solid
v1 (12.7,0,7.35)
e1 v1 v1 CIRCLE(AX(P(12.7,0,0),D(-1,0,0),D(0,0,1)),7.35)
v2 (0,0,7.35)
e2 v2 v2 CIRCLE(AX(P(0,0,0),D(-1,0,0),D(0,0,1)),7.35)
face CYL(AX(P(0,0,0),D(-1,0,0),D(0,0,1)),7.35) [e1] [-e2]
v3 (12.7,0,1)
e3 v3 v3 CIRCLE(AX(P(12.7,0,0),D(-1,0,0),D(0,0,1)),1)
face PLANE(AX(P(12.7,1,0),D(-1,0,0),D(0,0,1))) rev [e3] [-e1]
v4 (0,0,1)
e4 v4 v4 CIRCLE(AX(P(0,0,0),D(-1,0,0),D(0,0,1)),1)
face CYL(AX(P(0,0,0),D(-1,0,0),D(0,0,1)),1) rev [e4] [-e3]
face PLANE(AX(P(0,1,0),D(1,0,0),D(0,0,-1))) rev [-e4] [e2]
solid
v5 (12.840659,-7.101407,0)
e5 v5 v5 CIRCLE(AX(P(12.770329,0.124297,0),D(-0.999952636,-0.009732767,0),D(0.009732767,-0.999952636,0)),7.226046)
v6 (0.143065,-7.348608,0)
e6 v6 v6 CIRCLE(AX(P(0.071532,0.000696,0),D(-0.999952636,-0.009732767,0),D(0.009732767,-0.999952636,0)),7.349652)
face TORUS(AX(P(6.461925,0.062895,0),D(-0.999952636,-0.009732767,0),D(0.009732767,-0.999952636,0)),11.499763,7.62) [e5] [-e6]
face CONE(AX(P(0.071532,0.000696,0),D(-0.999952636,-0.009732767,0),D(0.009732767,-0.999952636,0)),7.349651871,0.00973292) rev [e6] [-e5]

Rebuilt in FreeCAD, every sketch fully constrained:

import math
import FreeCAD as App
import Part
import Sketcher

V = App.Vector
Q = App.Units.Quantity


def add_polygon(sketch, points):
    """Adds a closed chain of lines whose ends are joined by coincident constraints."""
    first, n = sketch.GeometryCount, len(points)
    for a, b in zip(points, points[1:] + points[:1]):
        sketch.addGeometry(Part.LineSegment(App.Vector(*a, 0), App.Vector(*b, 0)), False)
    for i in range(n):
        sketch.addConstraint(Sketcher.Constraint("Coincident", first + i, 2, first + (i + 1) % n, 1))

doc = App.newDocument("Part")
params = doc.addObject("Spreadsheet::Sheet", "Params")
for row, (alias, value) in enumerate([
    ("sketch1_width", "0.5 in"),
    ("sketch1_height", "0.25 in"),
    ("revolution_angle", "360 deg"),
    ("sketch2_radius", "0.3 in"),
    ("sketch2_width", "0.5 in"),
    ("revolution2_angle", "360 deg"),
], start=1):
    params.set(f"A{row}", alias)
    params.set(f"B{row}", "=" + value)
    params.setAlias(f"B{row}", alias)

body = doc.addObject("PartDesign::Body", "Body")

# Sketch on XY plane
sketch1 = body.newObject("Sketcher::SketchObject", "Sketch")
sketch1.AttachmentSupport = (doc.getObject("XY_Plane"), [""])
sketch1.MapMode = "FlatFace"
add_polygon(sketch1, [(0, 7.35), (0, 1), (12.7, 1), (12.7, 7.35)])  # lines 0-3
sketch1.addConstraint(Sketcher.Constraint("Vertical", 0))
sketch1.addConstraint(Sketcher.Constraint("Horizontal", 1))
sketch1.addConstraint(Sketcher.Constraint("Vertical", 2))
sketch1.addConstraint(Sketcher.Constraint("Horizontal", 3))
sketch1.addConstraint(Sketcher.Constraint("PointOnObject", 0, 2, -2))
sketch1.addConstraint(Sketcher.Constraint("DistanceX", 1, 1, 1, 2, Q("0.5 in")))
sketch1.addConstraint(Sketcher.Constraint("DistanceY", 0, 2, 0, 1, Q("0.25 in")))
sketch1.addConstraint(Sketcher.Constraint("DistanceY", -1, 1, 0, 2, Q("1 mm")))
sketch1.setExpression("Constraints[9]", "Params.sketch1_width")
sketch1.setExpression("Constraints[10]", "Params.sketch1_height")
revolution = body.newObject("PartDesign::Revolution", "Revolution")
revolution.Profile = sketch1
revolution.ReferenceAxis = (sketch1, ["H_Axis"])
revolution.setExpression("Angle", "Params.revolution_angle")
body2 = doc.addObject("PartDesign::Body", "Body001")

# Sketch on XY plane
sketch2 = body2.newObject("Sketcher::SketchObject", "Sketch001")
sketch2.AttachmentSupport = (doc.getObject("XY_Plane001"), [""])
sketch2.MapMode = "FlatFace"
sketch2.addGeometry(Part.LineSegment(V(0, 7.35, 0), V(12.7, 7.35, 0)), False)
sketch2.addGeometry(Part.ArcOfCircle(Part.Circle(V(6.35, 11.562113, 0), V(0, 0, 1), 7.62), math.radians(-33.55731), math.radians(213.55731)), False)
sketch2.addGeometry(Part.LineSegment(V(0.071532, 0.000696, 0), V(12.770329, 0.124297, 0)), True)  # axis
sketch2.addConstraint(Sketcher.Constraint("Coincident", 0, 1, 1, 2))
sketch2.addConstraint(Sketcher.Constraint("Coincident", 1, 1, 0, 2))
sketch2.addConstraint(Sketcher.Constraint("Horizontal", 0))
sketch2.addConstraint(Sketcher.Constraint("PointOnObject", 0, 1, -2))
sketch2.addConstraint(Sketcher.Constraint("Radius", 1, Q("0.3 in")))
sketch2.addConstraint(Sketcher.Constraint("DistanceX", 0, 1, 0, 2, Q("0.5 in")))
sketch2.addConstraint(Sketcher.Constraint("Distance", 2, Q("12.699398 mm")))
sketch2.addConstraint(Sketcher.Constraint("DistanceY", -1, 1, 0, 1, Q("7.35 mm")))
sketch2.addConstraint(Sketcher.Constraint("DistanceY", 2, 1, 2, 2, Q("0.1236 mm")))
sketch2.addConstraint(Sketcher.Constraint("DistanceX", -1, 1, 2, 2, Q("12.770329 mm")))
sketch2.addConstraint(Sketcher.Constraint("DistanceY", -1, 1, 2, 1, Q("0.000696 mm")))
sketch2.setExpression("Constraints[4]", "Params.sketch2_radius")
sketch2.setExpression("Constraints[5]", "Params.sketch2_width")
revolution2 = body2.newObject("PartDesign::Revolution", "Revolution001")
revolution2.Profile = sketch2
revolution2.ReferenceAxis = (sketch2, ["Axis0"])
revolution2.setExpression("Angle", "Params.revolution2_angle")

doc.recompute()
